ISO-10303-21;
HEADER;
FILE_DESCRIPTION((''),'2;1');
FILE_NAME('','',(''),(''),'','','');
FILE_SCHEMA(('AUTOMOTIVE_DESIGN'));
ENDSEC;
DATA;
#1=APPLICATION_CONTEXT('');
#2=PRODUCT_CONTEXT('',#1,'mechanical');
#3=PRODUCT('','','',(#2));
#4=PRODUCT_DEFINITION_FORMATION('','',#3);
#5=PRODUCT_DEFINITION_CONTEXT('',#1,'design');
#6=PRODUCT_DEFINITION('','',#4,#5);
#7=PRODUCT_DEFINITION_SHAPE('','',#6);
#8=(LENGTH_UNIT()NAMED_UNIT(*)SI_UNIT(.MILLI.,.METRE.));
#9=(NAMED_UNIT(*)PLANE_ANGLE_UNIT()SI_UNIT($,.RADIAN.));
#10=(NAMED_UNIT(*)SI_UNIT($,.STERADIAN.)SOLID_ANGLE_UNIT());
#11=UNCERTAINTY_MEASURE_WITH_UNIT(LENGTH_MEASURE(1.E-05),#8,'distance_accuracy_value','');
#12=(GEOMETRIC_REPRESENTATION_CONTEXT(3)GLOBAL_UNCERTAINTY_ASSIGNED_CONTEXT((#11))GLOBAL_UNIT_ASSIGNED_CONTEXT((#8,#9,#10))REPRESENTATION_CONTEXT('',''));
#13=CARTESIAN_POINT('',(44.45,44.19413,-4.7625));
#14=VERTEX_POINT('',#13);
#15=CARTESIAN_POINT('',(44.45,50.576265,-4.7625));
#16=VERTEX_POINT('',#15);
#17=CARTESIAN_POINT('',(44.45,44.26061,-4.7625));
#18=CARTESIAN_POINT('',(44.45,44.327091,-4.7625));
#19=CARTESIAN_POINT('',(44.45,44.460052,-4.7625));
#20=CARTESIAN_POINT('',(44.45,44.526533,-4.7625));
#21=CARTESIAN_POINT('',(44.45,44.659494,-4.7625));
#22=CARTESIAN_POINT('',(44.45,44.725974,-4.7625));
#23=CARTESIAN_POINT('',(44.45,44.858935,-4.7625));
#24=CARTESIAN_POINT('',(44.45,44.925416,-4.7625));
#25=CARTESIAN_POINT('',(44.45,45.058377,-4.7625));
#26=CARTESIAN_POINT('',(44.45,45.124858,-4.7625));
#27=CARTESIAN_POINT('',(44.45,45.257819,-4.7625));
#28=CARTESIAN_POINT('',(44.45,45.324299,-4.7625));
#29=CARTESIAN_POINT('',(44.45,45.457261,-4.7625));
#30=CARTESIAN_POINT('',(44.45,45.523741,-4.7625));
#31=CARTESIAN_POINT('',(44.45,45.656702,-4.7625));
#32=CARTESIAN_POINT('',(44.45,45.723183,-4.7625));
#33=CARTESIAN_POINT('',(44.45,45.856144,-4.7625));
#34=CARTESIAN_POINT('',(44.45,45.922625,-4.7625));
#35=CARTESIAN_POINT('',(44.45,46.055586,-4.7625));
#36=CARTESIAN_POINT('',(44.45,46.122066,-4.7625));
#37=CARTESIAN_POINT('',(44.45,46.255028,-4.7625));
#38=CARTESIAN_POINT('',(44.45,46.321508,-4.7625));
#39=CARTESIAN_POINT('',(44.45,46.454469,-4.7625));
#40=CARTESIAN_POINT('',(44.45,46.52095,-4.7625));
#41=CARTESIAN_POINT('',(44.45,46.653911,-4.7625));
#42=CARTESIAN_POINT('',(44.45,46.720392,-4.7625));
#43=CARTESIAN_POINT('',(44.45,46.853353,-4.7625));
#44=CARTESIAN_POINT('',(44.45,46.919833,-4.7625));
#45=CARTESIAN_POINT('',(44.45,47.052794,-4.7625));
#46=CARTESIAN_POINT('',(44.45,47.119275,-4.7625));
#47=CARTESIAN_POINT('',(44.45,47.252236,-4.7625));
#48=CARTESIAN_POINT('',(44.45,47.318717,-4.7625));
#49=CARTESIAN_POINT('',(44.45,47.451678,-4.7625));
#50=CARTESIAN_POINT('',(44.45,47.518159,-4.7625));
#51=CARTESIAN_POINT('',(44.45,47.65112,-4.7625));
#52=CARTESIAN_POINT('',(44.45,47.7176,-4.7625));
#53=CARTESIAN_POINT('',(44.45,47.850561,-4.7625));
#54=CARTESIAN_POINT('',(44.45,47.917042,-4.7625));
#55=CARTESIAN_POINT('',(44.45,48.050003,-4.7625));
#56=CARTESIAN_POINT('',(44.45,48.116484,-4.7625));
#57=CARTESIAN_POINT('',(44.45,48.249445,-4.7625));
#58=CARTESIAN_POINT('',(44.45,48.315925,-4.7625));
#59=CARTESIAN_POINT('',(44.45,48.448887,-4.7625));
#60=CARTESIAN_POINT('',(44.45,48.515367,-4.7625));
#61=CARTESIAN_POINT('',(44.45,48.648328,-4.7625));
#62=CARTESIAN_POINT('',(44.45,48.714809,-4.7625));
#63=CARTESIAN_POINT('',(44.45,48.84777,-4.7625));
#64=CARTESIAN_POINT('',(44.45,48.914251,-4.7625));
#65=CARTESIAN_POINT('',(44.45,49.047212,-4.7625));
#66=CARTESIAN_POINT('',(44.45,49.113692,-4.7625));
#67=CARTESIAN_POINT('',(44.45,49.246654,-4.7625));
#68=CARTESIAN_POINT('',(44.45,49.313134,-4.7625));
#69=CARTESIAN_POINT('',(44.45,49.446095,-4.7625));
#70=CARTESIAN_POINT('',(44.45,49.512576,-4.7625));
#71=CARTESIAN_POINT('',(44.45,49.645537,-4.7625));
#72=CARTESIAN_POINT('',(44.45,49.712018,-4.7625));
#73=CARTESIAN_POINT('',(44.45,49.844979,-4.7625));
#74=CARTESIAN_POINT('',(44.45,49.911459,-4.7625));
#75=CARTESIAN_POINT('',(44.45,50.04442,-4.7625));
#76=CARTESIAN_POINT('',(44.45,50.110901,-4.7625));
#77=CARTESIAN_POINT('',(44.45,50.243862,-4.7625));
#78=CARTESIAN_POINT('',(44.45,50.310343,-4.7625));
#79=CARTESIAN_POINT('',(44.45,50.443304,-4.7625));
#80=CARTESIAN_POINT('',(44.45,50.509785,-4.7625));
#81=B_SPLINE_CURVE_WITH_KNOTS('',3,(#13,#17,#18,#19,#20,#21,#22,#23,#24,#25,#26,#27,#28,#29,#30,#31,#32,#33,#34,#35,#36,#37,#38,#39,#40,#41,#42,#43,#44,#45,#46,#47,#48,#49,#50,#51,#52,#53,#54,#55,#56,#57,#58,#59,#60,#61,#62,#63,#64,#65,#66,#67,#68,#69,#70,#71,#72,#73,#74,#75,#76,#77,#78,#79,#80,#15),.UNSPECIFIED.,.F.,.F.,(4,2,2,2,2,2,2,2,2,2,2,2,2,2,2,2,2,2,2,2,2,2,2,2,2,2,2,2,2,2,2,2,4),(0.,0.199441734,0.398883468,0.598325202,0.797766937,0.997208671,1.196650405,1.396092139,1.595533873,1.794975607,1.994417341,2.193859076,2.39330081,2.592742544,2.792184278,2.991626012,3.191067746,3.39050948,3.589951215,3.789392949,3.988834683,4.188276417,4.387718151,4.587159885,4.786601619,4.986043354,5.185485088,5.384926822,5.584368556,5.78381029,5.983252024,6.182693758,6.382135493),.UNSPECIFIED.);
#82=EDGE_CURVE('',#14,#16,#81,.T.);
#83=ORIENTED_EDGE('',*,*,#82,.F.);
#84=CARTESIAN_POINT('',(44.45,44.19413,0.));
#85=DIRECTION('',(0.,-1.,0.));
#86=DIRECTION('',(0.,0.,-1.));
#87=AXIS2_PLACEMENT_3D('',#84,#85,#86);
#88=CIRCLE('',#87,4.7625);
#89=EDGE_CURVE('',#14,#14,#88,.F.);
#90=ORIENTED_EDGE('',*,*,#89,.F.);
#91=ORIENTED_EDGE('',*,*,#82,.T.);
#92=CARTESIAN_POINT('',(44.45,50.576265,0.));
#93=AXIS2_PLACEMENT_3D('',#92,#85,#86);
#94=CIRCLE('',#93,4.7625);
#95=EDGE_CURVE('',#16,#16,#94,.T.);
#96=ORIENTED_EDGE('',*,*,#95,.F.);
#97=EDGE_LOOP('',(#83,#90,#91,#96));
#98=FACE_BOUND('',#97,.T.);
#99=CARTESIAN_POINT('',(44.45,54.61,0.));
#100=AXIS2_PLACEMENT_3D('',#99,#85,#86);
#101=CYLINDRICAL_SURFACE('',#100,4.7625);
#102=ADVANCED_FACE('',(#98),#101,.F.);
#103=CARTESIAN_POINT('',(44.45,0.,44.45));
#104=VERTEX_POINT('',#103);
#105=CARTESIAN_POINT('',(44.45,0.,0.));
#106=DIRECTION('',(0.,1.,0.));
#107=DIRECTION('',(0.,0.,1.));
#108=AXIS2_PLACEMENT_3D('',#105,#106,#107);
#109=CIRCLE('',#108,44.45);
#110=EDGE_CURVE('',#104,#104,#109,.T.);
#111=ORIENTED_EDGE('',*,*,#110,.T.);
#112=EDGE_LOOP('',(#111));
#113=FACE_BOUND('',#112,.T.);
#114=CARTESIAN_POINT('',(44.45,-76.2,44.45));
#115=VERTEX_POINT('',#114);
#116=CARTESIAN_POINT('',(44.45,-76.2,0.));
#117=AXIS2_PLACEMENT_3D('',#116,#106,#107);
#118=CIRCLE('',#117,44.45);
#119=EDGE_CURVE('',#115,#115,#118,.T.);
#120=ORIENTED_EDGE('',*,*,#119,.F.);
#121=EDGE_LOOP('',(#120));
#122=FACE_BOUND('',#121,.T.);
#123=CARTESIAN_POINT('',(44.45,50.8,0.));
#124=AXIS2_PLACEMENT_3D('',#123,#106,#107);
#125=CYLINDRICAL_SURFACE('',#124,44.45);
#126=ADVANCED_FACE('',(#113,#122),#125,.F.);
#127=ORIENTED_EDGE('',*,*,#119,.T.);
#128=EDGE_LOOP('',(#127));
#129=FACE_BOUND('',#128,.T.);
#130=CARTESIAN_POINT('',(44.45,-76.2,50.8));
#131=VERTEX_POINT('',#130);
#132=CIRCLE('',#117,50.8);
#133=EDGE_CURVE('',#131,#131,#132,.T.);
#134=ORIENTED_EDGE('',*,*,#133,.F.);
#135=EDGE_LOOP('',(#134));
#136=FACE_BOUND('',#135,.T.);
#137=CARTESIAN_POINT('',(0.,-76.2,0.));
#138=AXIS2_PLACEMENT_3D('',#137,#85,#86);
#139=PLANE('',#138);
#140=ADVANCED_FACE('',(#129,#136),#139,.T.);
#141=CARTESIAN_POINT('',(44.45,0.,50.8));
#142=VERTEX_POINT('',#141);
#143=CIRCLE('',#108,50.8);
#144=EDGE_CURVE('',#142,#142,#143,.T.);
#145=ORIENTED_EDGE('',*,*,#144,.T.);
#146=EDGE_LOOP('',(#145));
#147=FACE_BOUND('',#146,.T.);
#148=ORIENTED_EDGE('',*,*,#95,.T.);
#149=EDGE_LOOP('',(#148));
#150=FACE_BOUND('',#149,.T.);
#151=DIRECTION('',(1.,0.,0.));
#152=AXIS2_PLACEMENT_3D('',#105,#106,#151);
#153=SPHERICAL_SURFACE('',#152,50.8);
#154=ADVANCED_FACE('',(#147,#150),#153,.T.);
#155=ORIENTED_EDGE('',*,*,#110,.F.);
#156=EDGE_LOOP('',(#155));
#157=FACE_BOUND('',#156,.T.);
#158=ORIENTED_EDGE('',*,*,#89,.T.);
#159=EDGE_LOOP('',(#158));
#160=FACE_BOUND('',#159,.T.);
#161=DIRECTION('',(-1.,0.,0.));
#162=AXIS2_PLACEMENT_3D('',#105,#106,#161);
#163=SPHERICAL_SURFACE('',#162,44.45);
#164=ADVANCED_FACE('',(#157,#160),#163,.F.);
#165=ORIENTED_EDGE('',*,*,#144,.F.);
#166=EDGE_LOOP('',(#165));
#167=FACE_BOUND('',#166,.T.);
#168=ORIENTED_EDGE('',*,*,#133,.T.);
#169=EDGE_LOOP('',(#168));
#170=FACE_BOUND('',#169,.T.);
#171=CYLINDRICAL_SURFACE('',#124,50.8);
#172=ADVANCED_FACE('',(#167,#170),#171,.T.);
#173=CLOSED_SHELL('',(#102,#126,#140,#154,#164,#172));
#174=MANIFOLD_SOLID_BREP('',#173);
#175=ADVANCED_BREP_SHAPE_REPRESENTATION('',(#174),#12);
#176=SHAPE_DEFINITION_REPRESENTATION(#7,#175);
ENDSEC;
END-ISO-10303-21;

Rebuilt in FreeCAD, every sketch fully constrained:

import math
import FreeCAD as App
import Part
import Sketcher
from FreeCAD import Vector
Q = App.Units.Quantity

doc = App.newDocument("Part")
params = doc.addObject("Spreadsheet::Sheet", "Params")
for row, (alias, value) in enumerate([
    ("sketch1_radius", "2 in"),
    ("sketch1_height", "3 in"),
    ("sketch1_radius2", "1.75 in"),
    ("revolution_angle", "360 deg"),
    ("sketch2_diameter", "0.375 in"),
    ("pocket1_length", "2.15 in"),
], start=1):
    params.set(f"A{row}", alias)
    params.set(f"B{row}", "=" + value)
    params.setAlias(f"B{row}", alias)

body = doc.addObject("PartDesign::Body", "Body")

sketch1 = doc.addObject("Sketcher::SketchObject", "Sketch")
body.addObject(sketch1)
sketch1.AttachmentSupport = (doc.XY_Plane, [""])
sketch1.MapMode = "FlatFace"
sketch1.addGeometry(Part.LineSegment(Vector(44, 44, 0), Vector(44, 51, 0)), False)
sketch1.addGeometry(Part.ArcOfCircle(Part.Circle(Vector(44, 0, 0), Vector(0, 0, 1), 51), math.radians(90), math.radians(180)), False)
sketch1.addGeometry(Part.LineSegment(Vector(-6, 0, 0), Vector(-6, -76, 0)), False)
sketch1.addGeometry(Part.LineSegment(Vector(-6, -76, 0), Vector(0, -76, 0)), False)
sketch1.addGeometry(Part.LineSegment(Vector(0, -76, 0), Vector(0, 0, 0)), False)
sketch1.addGeometry(Part.ArcOfCircle(Part.Circle(Vector(44, 0, 0), Vector(0, 0, 1), 44), math.radians(90), math.radians(180)), False)
sketch1.addGeometry(Part.LineSegment(Vector(44, 51, 0), Vector(44, -76, 0)), True)
sketch1.addConstraint(Sketcher.Constraint("Coincident", 0, 2, 1, 1))
sketch1.addConstraint(Sketcher.Constraint("Tangent", 1, 2, 2, 1))
sketch1.addConstraint(Sketcher.Constraint("Coincident", 2, 2, 3, 1))
sketch1.addConstraint(Sketcher.Constraint("Coincident", 3, 2, 4, 1))
sketch1.addConstraint(Sketcher.Constraint("Tangent", 4, 2, 5, 2))
sketch1.addConstraint(Sketcher.Constraint("Coincident", 5, 1, 0, 1))
sketch1.addConstraint(Sketcher.Constraint("Vertical", 0))
sketch1.addConstraint(Sketcher.Constraint("Vertical", 2))
sketch1.addConstraint(Sketcher.Constraint("Horizontal", 3))
sketch1.addConstraint(Sketcher.Constraint("Vertical", 4))
sketch1.addConstraint(Sketcher.Constraint("Vertical", 6))
sketch1.addConstraint(Sketcher.Constraint("Coincident", 4, 2, -1, 1))
sketch1.addConstraint(Sketcher.Constraint("Coincident", 5, 3, 1, 3))
sketch1.addConstraint(Sketcher.Constraint("Coincident", 6, 1, 0, 2))
sketch1.addConstraint(Sketcher.Constraint("Horizontal", 3, 2, 6, 2))
sketch1.addConstraint(Sketcher.Constraint("Vertical", 5, 3, 0, 2))
sketch1.addConstraint(Sketcher.Constraint("Radius", 1, Q("2 in")))
sketch1.addConstraint(Sketcher.Constraint("DistanceY", 2, 2, 2, 1, Q("3 in")))
sketch1.addConstraint(Sketcher.Constraint("Radius", 5, Q("1.75 in")))
sketch1.setExpression("Constraints[16]", "Params.sketch1_radius")
sketch1.setExpression("Constraints[17]", "Params.sketch1_height")
sketch1.setExpression("Constraints[18]", "Params.sketch1_radius2")
revolution = doc.addObject("PartDesign::Revolution", "Revolution")
body.addObject(revolution)
revolution.Profile = sketch1
revolution.ReferenceAxis = (sketch1, ["Axis0"])
revolution.setExpression("Angle", "Params.revolution_angle")

sketch2 = doc.addObject("Sketcher::SketchObject", "Sketch001")
body.addObject(sketch2)
sketch2.AttachmentSupport = (doc.XZ_Plane, [""])
sketch2.MapMode = "FlatFace"
sketch2.addGeometry(Part.Circle(Vector(44.5, 0, 0), Vector(0, 0, 1), 4.8), False)
sketch2.addConstraint(Sketcher.Constraint("PointOnObject", 0, 3, -1))
sketch2.addConstraint(Sketcher.Constraint("Diameter", 0, Q("0.375 in")))
sketch2.addConstraint(Sketcher.Constraint("DistanceX", -1, 1, 0, 3, Q("1.75 in")))
sketch2.setExpression("Constraints[1]", "Params.sketch2_diameter")
pocket1 = doc.addObject("PartDesign::Pocket", "Pocket")
body.addObject(pocket1)
pocket1.Profile = sketch2
pocket1.setExpression("Length", "Params.pocket1_length")

doc.recompute()
